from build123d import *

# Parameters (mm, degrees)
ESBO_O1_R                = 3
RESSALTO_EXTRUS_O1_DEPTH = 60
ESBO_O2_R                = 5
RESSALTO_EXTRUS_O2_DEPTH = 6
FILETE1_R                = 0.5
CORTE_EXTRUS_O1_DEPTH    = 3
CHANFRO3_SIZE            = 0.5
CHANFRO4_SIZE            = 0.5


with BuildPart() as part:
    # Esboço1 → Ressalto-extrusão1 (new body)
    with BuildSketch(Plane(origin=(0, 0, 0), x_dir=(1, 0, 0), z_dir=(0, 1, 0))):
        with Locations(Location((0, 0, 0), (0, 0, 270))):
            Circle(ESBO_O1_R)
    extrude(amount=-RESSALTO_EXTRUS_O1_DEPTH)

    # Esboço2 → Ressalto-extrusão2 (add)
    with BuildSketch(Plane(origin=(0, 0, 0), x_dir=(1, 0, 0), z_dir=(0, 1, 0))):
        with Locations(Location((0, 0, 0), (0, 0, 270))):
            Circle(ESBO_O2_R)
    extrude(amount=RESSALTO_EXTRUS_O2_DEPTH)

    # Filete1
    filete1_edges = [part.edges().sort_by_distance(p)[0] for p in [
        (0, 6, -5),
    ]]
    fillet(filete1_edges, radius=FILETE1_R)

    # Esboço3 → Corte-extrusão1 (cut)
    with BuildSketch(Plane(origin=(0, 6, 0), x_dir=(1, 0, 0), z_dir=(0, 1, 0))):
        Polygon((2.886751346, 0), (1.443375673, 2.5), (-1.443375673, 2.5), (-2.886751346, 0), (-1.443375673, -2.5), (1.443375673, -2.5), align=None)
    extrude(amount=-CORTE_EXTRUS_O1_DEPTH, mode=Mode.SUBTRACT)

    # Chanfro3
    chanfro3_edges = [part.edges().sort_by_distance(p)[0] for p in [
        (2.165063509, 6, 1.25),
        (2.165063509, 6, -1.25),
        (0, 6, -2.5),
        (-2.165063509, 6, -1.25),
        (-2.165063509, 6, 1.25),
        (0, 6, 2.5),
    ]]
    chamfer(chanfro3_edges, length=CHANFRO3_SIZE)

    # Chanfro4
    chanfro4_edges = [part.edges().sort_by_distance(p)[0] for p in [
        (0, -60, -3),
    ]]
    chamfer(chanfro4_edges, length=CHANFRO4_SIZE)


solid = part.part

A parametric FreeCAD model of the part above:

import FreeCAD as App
import Part
import Sketcher

V = App.Vector
Q = App.Units.Quantity


def edges_at(feature, points):
    """Names of the edges that pass closest to the given points."""
    edges = feature.Shape.Edges
    near = lambda p: min(range(len(edges)), key=lambda i: edges[i].distToShape(Part.Vertex(*p))[0])
    return sorted({f"Edge{near(p) + 1}" for p in points})

doc = App.newDocument("Part")
body = doc.addObject("PartDesign::Body", "Body")

# Sketch on XZ plane
sketch1 = body.newObject("Sketcher::SketchObject", "Sketch")
sketch1.AttachmentSupport = (doc.getObject("XZ_Plane"), [""])
sketch1.MapMode = "FlatFace"
sketch1.addGeometry(Part.Circle(V(0, 0, 0), V(0, 0, 1), 3), False)
sketch1.addConstraint(Sketcher.Constraint("Coincident", 0, 3, -1, 1))
sketch1.addConstraint(Sketcher.Constraint("Diameter", 0, Q("6 mm")))
pad1 = body.newObject("PartDesign::Pad", "Pad")
pad1.Profile = sketch1
pad1.Length = 60

# Sketch on XZ plane
sketch2 = body.newObject("Sketcher::SketchObject", "Sketch001")
sketch2.AttachmentSupport = (doc.getObject("XZ_Plane"), [""])
sketch2.MapMode = "FlatFace"
sketch2.addGeometry(Part.Circle(V(0, 0, 0), V(0, 0, 1), 5), False)
sketch2.addConstraint(Sketcher.Constraint("Coincident", 0, 3, -1, 1))
sketch2.addConstraint(Sketcher.Constraint("Diameter", 0, Q("10 mm")))
pad2 = body.newObject("PartDesign::Pad", "Pad001")
pad2.Profile = sketch2
pad2.Length = 6
pad2.Reversed = True
doc.recompute()

fillet = body.newObject("PartDesign::Fillet", "Fillet")
fillet.Base = (pad2, edges_at(pad2, [(0, 6, -5)]))
fillet.Radius = 0.5

# Sketch on XZ plane
sketch3 = body.newObject("Sketcher::SketchObject", "Sketch002")
sketch3.AttachmentSupport = (doc.getObject("XZ_Plane"), [""])
sketch3.MapMode = "FlatFace"
sketch3.AttachmentOffset = App.Placement(V(0, 0, -6), App.Rotation())
sketch3.addGeometry(Part.LineSegment(V(2.9, 0, 0), V(1.4, -2.5, 0)), False)
sketch3.addGeometry(Part.LineSegment(V(1.4, -2.5, 0), V(-1.4, -2.5, 0)), False)
sketch3.addGeometry(Part.LineSegment(V(-1.4, -2.5, 0), V(-2.9, 0, 0)), False)
sketch3.addGeometry(Part.LineSegment(V(-2.9, 0, 0), V(-1.4, 2.5, 0)), False)
sketch3.addGeometry(Part.LineSegment(V(-1.4, 2.5, 0), V(1.4, 2.5, 0)), False)
sketch3.addGeometry(Part.LineSegment(V(1.4, 2.5, 0), V(2.9, 0, 0)), False)
sketch3.addConstraint(Sketcher.Constraint("Coincident", 0, 2, 1, 1))
sketch3.addConstraint(Sketcher.Constraint("Coincident", 1, 2, 2, 1))
sketch3.addConstraint(Sketcher.Constraint("Coincident", 2, 2, 3, 1))
sketch3.addConstraint(Sketcher.Constraint("Coincident", 3, 2, 4, 1))
sketch3.addConstraint(Sketcher.Constraint("Coincident", 4, 2, 5, 1))
sketch3.addConstraint(Sketcher.Constraint("Coincident", 5, 2, 0, 1))
sketch3.addConstraint(Sketcher.Constraint("Horizontal", 1))
sketch3.addConstraint(Sketcher.Constraint("Horizontal", 4))
sketch3.addConstraint(Sketcher.Constraint("Symmetric", 0, 2, 3, 2, -1, 1))
sketch3.addConstraint(Sketcher.Constraint("Symmetric", 2, 2, 5, 2, -1, 1))
sketch3.addConstraint(Sketcher.Constraint("PointOnObject", 2, 2, -1))
sketch3.addConstraint(Sketcher.Constraint("Parallel", 2, 5))
sketch3.addConstraint(Sketcher.Constraint("Vertical", 1, 2, 3, 2))
sketch3.addConstraint(Sketcher.Constraint("Angle", 0, Q("-120 deg")))
sketch3.addConstraint(Sketcher.Constraint("DistanceY", 1, 2, 3, 2, Q("5 mm")))
sketch3.addConstraint(Sketcher.Constraint("DistanceX", 1, 2, 1, 1, Q("2.886751 mm")))
pocket1 = body.newObject("PartDesign::Pocket", "Pocket")
pocket1.Profile = sketch3
pocket1.Length = 3
pocket1.Reversed = True
doc.recompute()

chamfer = body.newObject("PartDesign::Chamfer", "Chamfer")
chamfer.Base = (pocket1, edges_at(pocket1, [
    (2.165, 6, 1.25),
    (2.165, 6, -1.25),
    (0, 6, -2.5),
    (-2.165, 6, -1.25),
    (-2.165, 6, 1.25),
    (0, 6, 2.5),
]))
chamfer.Size = 0.5
doc.recompute()

chamfer2 = body.newObject("PartDesign::Chamfer", "Chamfer001")
chamfer2.Base = (chamfer, edges_at(chamfer, [(0, -60, -3)]))
chamfer2.Size = 0.5

doc.recompute()
